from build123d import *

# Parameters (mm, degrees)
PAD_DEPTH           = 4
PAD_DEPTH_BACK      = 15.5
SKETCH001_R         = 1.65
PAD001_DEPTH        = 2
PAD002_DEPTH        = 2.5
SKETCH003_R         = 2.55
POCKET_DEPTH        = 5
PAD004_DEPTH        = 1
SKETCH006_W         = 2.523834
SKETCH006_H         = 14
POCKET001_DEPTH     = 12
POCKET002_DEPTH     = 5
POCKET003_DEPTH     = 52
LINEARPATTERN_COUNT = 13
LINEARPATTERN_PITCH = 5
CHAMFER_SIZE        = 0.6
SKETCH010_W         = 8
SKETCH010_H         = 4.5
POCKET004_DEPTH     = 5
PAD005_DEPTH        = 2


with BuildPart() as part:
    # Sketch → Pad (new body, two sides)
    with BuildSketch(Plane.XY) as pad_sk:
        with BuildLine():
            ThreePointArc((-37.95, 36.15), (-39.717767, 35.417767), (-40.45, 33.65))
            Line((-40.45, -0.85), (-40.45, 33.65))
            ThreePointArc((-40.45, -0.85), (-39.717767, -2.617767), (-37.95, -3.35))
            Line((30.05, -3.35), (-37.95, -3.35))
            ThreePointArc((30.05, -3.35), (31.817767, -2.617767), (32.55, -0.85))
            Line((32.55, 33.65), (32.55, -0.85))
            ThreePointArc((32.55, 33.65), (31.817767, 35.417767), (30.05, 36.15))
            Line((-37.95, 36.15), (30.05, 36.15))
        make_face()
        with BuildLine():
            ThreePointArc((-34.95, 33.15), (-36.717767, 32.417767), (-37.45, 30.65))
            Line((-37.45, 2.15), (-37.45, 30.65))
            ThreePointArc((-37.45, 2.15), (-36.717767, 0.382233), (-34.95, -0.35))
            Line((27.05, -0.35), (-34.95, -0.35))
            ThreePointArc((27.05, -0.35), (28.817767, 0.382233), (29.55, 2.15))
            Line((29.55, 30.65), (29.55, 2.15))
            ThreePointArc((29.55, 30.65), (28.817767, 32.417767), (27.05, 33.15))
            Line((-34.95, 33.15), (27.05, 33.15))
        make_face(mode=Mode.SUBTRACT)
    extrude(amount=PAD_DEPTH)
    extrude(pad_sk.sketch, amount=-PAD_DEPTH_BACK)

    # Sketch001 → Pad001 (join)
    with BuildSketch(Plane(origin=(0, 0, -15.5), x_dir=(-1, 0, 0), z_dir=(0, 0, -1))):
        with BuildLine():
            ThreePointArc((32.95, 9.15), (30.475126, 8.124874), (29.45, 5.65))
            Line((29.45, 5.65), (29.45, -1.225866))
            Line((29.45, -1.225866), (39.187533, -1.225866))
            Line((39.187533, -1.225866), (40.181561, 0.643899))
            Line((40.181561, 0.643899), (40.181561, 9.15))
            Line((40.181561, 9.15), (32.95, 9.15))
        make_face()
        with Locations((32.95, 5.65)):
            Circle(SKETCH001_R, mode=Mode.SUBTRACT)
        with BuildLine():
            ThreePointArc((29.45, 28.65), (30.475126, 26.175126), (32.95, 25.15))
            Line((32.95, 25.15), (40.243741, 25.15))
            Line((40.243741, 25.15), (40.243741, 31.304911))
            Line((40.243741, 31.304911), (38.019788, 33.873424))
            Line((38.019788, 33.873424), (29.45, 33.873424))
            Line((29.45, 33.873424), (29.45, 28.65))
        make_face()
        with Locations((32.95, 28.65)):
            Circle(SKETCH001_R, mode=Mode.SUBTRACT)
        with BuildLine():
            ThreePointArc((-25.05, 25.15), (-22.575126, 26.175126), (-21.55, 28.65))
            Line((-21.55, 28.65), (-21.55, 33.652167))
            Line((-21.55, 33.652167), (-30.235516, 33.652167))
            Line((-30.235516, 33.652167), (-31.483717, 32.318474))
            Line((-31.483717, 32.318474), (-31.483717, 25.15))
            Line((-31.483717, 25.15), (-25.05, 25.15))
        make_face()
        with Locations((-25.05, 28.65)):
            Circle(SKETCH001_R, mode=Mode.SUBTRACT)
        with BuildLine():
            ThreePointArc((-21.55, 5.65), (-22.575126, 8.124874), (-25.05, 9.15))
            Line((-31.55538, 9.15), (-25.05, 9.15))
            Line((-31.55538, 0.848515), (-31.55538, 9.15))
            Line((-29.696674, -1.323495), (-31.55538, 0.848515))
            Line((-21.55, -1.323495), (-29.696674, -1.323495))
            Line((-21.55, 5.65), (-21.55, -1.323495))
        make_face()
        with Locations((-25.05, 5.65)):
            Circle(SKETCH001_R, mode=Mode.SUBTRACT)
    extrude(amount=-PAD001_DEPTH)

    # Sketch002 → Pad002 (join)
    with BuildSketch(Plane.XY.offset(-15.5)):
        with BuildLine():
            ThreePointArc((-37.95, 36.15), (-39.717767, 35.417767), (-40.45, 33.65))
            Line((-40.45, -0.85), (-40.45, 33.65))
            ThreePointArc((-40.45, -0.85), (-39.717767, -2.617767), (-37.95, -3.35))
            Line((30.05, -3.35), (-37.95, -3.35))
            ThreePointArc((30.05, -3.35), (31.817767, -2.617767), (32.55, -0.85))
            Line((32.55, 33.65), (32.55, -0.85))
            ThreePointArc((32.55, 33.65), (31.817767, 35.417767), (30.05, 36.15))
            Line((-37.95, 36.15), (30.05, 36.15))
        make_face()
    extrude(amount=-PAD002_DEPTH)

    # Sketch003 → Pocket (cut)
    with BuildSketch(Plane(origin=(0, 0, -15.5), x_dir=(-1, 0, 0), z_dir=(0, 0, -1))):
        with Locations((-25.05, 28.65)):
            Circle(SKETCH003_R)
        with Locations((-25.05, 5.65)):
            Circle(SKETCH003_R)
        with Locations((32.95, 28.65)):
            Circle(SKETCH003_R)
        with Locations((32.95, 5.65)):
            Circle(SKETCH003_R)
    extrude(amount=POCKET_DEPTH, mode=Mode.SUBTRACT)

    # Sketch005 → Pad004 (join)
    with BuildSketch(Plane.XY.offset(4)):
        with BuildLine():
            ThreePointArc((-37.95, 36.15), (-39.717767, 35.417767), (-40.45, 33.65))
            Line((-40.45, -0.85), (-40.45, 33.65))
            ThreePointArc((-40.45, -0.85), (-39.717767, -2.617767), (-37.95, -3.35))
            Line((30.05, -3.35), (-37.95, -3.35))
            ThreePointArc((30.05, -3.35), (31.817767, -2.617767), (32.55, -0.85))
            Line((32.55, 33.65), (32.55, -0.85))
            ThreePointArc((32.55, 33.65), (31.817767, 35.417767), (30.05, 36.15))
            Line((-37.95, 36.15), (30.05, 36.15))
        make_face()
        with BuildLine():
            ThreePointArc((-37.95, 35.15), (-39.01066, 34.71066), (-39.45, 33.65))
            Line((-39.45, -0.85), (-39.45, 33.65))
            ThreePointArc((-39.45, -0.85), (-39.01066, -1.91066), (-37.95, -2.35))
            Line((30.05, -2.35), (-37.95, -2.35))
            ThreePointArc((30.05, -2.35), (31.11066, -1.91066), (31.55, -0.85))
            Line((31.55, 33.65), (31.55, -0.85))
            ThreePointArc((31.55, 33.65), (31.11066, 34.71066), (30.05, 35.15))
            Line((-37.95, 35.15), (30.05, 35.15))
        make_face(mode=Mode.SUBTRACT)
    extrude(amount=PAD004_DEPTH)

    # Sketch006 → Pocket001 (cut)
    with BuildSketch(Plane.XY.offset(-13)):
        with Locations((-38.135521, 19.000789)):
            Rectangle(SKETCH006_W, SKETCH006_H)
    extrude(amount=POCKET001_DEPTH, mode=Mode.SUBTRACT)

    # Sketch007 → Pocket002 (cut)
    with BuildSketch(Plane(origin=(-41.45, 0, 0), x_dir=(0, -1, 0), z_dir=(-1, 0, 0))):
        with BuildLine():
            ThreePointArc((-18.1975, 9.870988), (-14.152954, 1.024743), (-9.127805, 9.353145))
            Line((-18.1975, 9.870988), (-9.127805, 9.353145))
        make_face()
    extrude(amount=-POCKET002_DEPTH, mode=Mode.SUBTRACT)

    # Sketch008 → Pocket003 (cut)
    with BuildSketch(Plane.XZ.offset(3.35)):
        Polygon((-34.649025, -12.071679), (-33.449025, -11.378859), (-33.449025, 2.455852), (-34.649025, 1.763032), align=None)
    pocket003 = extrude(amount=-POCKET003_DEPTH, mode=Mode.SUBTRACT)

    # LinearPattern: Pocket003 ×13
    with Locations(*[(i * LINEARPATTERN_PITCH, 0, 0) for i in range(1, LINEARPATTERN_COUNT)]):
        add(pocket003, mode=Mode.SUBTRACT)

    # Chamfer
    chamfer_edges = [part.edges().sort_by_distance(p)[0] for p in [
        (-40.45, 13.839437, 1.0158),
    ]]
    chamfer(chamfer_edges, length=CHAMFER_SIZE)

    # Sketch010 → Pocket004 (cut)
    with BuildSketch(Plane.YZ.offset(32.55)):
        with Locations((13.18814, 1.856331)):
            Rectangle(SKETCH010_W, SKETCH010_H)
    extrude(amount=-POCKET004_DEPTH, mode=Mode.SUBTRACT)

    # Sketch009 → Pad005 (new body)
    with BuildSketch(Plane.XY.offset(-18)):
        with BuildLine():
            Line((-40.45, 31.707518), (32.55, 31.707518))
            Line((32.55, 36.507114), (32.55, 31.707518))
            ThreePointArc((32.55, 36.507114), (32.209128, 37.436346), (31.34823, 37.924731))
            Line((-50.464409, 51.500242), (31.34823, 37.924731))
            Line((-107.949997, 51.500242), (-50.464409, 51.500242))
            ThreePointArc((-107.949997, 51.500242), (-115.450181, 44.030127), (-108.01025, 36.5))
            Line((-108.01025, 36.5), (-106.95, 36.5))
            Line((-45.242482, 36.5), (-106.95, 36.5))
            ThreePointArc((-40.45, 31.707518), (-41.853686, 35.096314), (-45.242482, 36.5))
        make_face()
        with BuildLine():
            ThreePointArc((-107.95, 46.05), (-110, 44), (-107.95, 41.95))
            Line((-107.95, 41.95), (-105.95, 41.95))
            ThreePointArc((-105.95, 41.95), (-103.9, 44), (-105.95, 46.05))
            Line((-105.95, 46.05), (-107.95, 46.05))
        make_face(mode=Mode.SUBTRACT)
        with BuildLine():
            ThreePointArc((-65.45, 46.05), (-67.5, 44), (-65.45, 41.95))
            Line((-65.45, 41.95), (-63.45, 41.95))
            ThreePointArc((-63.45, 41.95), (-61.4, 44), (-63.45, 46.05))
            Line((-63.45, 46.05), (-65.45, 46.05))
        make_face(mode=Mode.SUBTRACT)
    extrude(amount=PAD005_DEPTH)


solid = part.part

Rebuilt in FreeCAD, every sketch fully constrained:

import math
import FreeCAD as App
import Part
import Sketcher
Q = App.Units.Quantity


def edges_at(feature, points):
    """Names of the edges that pass closest to the given points."""
    edges = feature.Shape.Edges
    near = lambda p: min(range(len(edges)), key=lambda i: edges[i].distToShape(Part.Vertex(*p))[0])
    return sorted({f"Edge{near(p) + 1}" for p in points})

doc = App.newDocument("Part")
params = doc.addObject("Spreadsheet::Sheet", "Params")
for row, (alias, value) in enumerate([
    ("sketch1_radius", "2.5 mm"),
    ("sketch1_width", "68 mm"),
    ("sketch1_width2", "62 mm"),
    ("sketch1_height", "34.5 mm"),
    ("sketch1_height2", "28.5 mm"),
    ("pad1_length", "4 mm"),
    ("pad1_length2", "15.5 mm"),
    ("sketch2_diameter", "3.3 mm"),
    ("sketch2_radius", "3.499999 mm"),
    ("pad2_length", "2 mm"),
    ("sketch3_radius", "2.5 mm"),
    ("sketch3_width", "68 mm"),
    ("sketch3_height", "34.5 mm"),
    ("pad3_length", "2.5 mm"),
    ("sketch4_diameter", "5.1 mm"),
    ("pocket1_length", "5 mm"),
    ("sketch5_radius", "2.5 mm"),
    ("sketch5_radius2", "1.500001 mm"),
    ("sketch5_width", "68 mm"),
    ("sketch5_height", "34.5 mm"),
    ("pad4_length", "1 mm"),
    ("sketch6_height", "14 mm"),
    ("pocket2_length", "12 mm"),
    ("sketch7_radius", "5.5 mm"),
    ("pocket3_length", "5 mm"),
    ("pocket4_length", "52 mm"),
    ("linearpattern_pitch", "5 mm"),
    ("chamfer_size", "0.6 mm"),
    ("sketch9_width", "8 mm"),
    ("sketch9_height", "4.5 mm"),
    ("pocket5_length", "5 mm"),
    ("sketch10_width", "73 mm"),
    ("sketch10_width2", "2 mm"),
    ("sketch10_radius", "2.05 mm"),
    ("pad5_length", "2 mm"),
], start=1):
    params.set(f"A{row}", alias)
    params.set(f"B{row}", "=" + value)
    params.setAlias(f"B{row}", alias)

body = doc.addObject("PartDesign::Body", "Body")

# Sketch on XY plane
sketch1 = body.newObject("Sketcher::SketchObject", "Sketch")
sketch1.AttachmentSupport = (doc.getObject("XY_Plane"), [""])
sketch1.MapMode = "FlatFace"
sketch1.addGeometry([
    Part.ArcOfCircle(Part.Circle(App.Vector(-38, 33.7, 0), App.Vector(0, 0, 1), 2.5), math.radians(90), math.radians(180)),  # 0
    Part.LineSegment(App.Vector(-40.5, 33.6, 0), App.Vector(-40.5, -0.8, 0)),  # 1
    Part.ArcOfCircle(Part.Circle(App.Vector(-38, -0.9, 0), App.Vector(0, 0, 1), 2.5), math.radians(180), math.radians(270)),  # 2
    Part.LineSegment(App.Vector(-38, -3.4, 0), App.Vector(30.1, -3.4, 0)),  # 3
    Part.ArcOfCircle(Part.Circle(App.Vector(30.1, -0.9, 0), App.Vector(0, 0, 1), 2.5), math.radians(-90), math.radians(0)),  # 4
    Part.LineSegment(App.Vector(32.5, -0.8, 0), App.Vector(32.5, 33.6, 0)),  # 5
    Part.ArcOfCircle(Part.Circle(App.Vector(30.1, 33.7, 0), App.Vector(0, 0, 1), 2.5), math.radians(0), math.radians(90)),  # 6
    Part.LineSegment(App.Vector(30.1, 36.1, 0), App.Vector(-38, 36.1, 0)),  # 7
    Part.ArcOfCircle(Part.Circle(App.Vector(-35, 30.7, 0), App.Vector(0, 0, 1), 2.5), math.radians(90), math.radians(180)),  # 8
    Part.LineSegment(App.Vector(-35, 33.1, 0), App.Vector(27.1, 33.1, 0)),  # 9
    Part.ArcOfCircle(Part.Circle(App.Vector(27.1, 30.7, 0), App.Vector(0, 0, 1), 2.5), math.radians(0), math.radians(90)),  # 10
    Part.LineSegment(App.Vector(29.6, 30.6, 0), App.Vector(29.6, 2.1, 0)),  # 11
    Part.ArcOfCircle(Part.Circle(App.Vector(27.1, 2.1, 0), App.Vector(0, 0, 1), 2.5), math.radians(-90), math.radians(0)),  # 12
    Part.LineSegment(App.Vector(27.1, -0.3, 0), App.Vector(-35, -0.3, 0)),  # 13
    Part.ArcOfCircle(Part.Circle(App.Vector(-35, 2.1, 0), App.Vector(0, 0, 1), 2.5), math.radians(180), math.radians(270)),  # 14
    Part.LineSegment(App.Vector(-37.5, 2.1, 0), App.Vector(-37.5, 30.6, 0)),  # 15
], False)
sketch1.addConstraint([
    Sketcher.Constraint("Tangent", 0, 2, 1, 1),
    Sketcher.Constraint("Tangent", 1, 2, 2, 1),
    Sketcher.Constraint("Tangent", 2, 2, 3, 1),
    Sketcher.Constraint("Tangent", 3, 2, 4, 1),
    Sketcher.Constraint("Tangent", 4, 2, 5, 1),
    Sketcher.Constraint("Tangent", 5, 2, 6, 1),
    Sketcher.Constraint("Tangent", 6, 2, 7, 1),
    Sketcher.Constraint("Tangent", 7, 2, 0, 1),
    Sketcher.Constraint("Tangent", 8, 1, 9, 1),
    Sketcher.Constraint("Tangent", 9, 2, 10, 2),
    Sketcher.Constraint("Tangent", 10, 1, 11, 1),
    Sketcher.Constraint("Tangent", 11, 2, 12, 2),
    Sketcher.Constraint("Tangent", 12, 1, 13, 1),
    Sketcher.Constraint("Tangent", 13, 2, 14, 2),
    Sketcher.Constraint("Tangent", 14, 1, 15, 1),
    Sketcher.Constraint("Tangent", 15, 2, 8, 2),
    Sketcher.Constraint("Vertical", 1),
    Sketcher.Constraint("Horizontal", 3),
    Sketcher.Constraint("Vertical", 5),
    Sketcher.Constraint("Horizontal", 7),
    Sketcher.Constraint("Horizontal", 9),
    Sketcher.Constraint("Vertical", 11),
    Sketcher.Constraint("Horizontal", 13),
    Sketcher.Constraint("Vertical", 15),
    Sketcher.Constraint("Equal", 0, 2),
    Sketcher.Constraint("Equal", 2, 4),
    Sketcher.Constraint("Equal", 4, 6),
    Sketcher.Constraint("Equal", 6, 8),
    Sketcher.Constraint("Equal", 8, 10),
    Sketcher.Constraint("Equal", 10, 12),
    Sketcher.Constraint("Equal", 12, 14),
    Sketcher.Constraint("Radius", 0, 2.5),
    Sketcher.Constraint("DistanceX", 3, 1, 3, 2, 68.0),
    Sketcher.Constraint("DistanceX", 9, 1, 9, 2, 62.0),
    Sketcher.Constraint("DistanceY", 1, 2, 1, 1, 34.5),
    Sketcher.Constraint("DistanceY", 11, 2, 11, 1, 28.5),
    Sketcher.Constraint("DistanceX", 0, 3, 8, 3, 3.0),
    Sketcher.Constraint("DistanceY", 8, 3, 0, 3, 3.0),
    Sketcher.Constraint("DistanceX", 0, 3, -1, 1, 37.95),
    Sketcher.Constraint("DistanceY", -1, 1, 0, 3, 33.65),
])
sketch1.setExpression("Constraints[31]", "Params.sketch1_radius")
sketch1.setExpression("Constraints[32]", "Params.sketch1_width")
sketch1.setExpression("Constraints[33]", "Params.sketch1_width2")
sketch1.setExpression("Constraints[34]", "Params.sketch1_height")
sketch1.setExpression("Constraints[35]", "Params.sketch1_height2")
pad1 = body.newObject("PartDesign::Pad", "Pad")
pad1.Profile = sketch1
pad1.Type = "TwoLengths"
pad1.setExpression("Length", "Params.pad1_length")
pad1.setExpression("Length2", "Params.pad1_length2")

# Sketch on XY plane
sketch2 = body.newObject("Sketcher::SketchObject", "Sketch001")
sketch2.AttachmentSupport = (doc.getObject("XY_Plane"), [""])
sketch2.MapMode = "FlatFace"
sketch2.AttachmentOffset = App.Placement(App.Vector(0, 0, -15.5), App.Rotation())
sketch2.addGeometry([
    Part.ArcOfCircle(Part.Circle(App.Vector(-32.9, 5.7, 0), App.Vector(0, 0, 1), 3.5), math.radians(0), math.radians(90)),  # 0
    Part.LineSegment(App.Vector(-29.4, 5.7, 0), App.Vector(-29.4, -1.2, 0)),  # 1
    Part.LineSegment(App.Vector(-29.4, -1.2, 0), App.Vector(-39.2, -1.2, 0)),  # 2
    Part.LineSegment(App.Vector(-39.2, -1.2, 0), App.Vector(-40.2, 0.6, 0)),  # 3
    Part.LineSegment(App.Vector(-40.2, 0.6, 0), App.Vector(-40.2, 9.2, 0)),  # 4
    Part.LineSegment(App.Vector(-40.2, 9.2, 0), App.Vector(-33, 9.2, 0)),  # 5
    Part.Circle(App.Vector(-33, 5.7, 0), App.Vector(0, 0, 1), 1.6),  # 6
    Part.ArcOfCircle(Part.Circle(App.Vector(-32.9, 28.6, 0), App.Vector(0, 0, 1), 3.5), math.radians(-90), math.radians(0)),  # 7
    Part.LineSegment(App.Vector(-33, 25.1, 0), App.Vector(-40.2, 25.1, 0)),  # 8
    Part.LineSegment(App.Vector(-40.2, 25.1, 0), App.Vector(-40.2, 31.3, 0)),  # 9
    Part.LineSegment(App.Vector(-40.2, 31.3, 0), App.Vector(-38, 33.9, 0)),  # 10
    Part.LineSegment(App.Vector(-38, 33.9, 0), App.Vector(-29.4, 33.9, 0)),  # 11
    Part.LineSegment(App.Vector(-29.4, 33.9, 0), App.Vector(-29.4, 28.6, 0)),  # 12
    Part.Circle(App.Vector(-33, 28.6, 0), App.Vector(0, 0, 1), 1.6),  # 13
    Part.ArcOfCircle(Part.Circle(App.Vector(25, 28.6, 0), App.Vector(0, 0, 1), 3.5), math.radians(180), math.radians(270)),  # 14
    Part.LineSegment(App.Vector(21.6, 28.6, 0), App.Vector(21.6, 33.7, 0)),  # 15
    Part.LineSegment(App.Vector(21.6, 33.7, 0), App.Vector(30.2, 33.7, 0)),  # 16
    Part.LineSegment(App.Vector(30.2, 33.7, 0), App.Vector(31.5, 32.3, 0)),  # 17
    Part.LineSegment(App.Vector(31.5, 32.3, 0), App.Vector(31.5, 25.1, 0)),  # 18
    Part.LineSegment(App.Vector(31.5, 25.1, 0), App.Vector(25.1, 25.1, 0)),  # 19
    Part.Circle(App.Vector(25.1, 28.6, 0), App.Vector(0, 0, 1), 1.6),  # 20
    Part.ArcOfCircle(Part.Circle(App.Vector(25, 5.7, 0), App.Vector(0, 0, 1), 3.5), math.radians(90), math.radians(180)),  # 21
    Part.LineSegment(App.Vector(25.1, 9.2, 0), App.Vector(31.6, 9.2, 0)),  # 22
    Part.LineSegment(App.Vector(31.6, 9.2, 0), App.Vector(31.6, 0.8, 0)),  # 23
    Part.LineSegment(App.Vector(31.6, 0.8, 0), App.Vector(29.7, -1.3, 0)),  # 24
    Part.LineSegment(App.Vector(29.7, -1.3, 0), App.Vector(21.6, -1.3, 0)),  # 25
    Part.LineSegment(App.Vector(21.6, -1.3, 0), App.Vector(21.6, 5.7, 0)),  # 26
    Part.Circle(App.Vector(25.1, 5.7, 0), App.Vector(0, 0, 1), 1.6),  # 27
], False)
sketch2.addConstraint([
    Sketcher.Constraint("Tangent", 0, 1, 1, 1),
    Sketcher.Constraint("Coincident", 1, 2, 2, 1),
    Sketcher.Constraint("Coincident", 2, 2, 3, 1),
    Sketcher.Constraint("Coincident", 3, 2, 4, 1),
    Sketcher.Constraint("Coincident", 4, 2, 5, 1),
    Sketcher.Constraint("Tangent", 5, 2, 0, 2),
    Sketcher.Constraint("Tangent", 7, 1, 8, 1),
    Sketcher.Constraint("Coincident", 8, 2, 9, 1),
    Sketcher.Constraint("Coincident", 9, 2, 10, 1),
    Sketcher.Constraint("Coincident", 10, 2, 11, 1),
    Sketcher.Constraint("Coincident", 11, 2, 12, 1),
    Sketcher.Constraint("Tangent", 12, 2, 7, 2),
    Sketcher.Constraint("Tangent", 14, 1, 15, 1),
    Sketcher.Constraint("Coincident", 15, 2, 16, 1),
    Sketcher.Constraint("Coincident", 16, 2, 17, 1),
    Sketcher.Constraint("Coincident", 17, 2, 18, 1),
    Sketcher.Constraint("Coincident", 18, 2, 19, 1),
    Sketcher.Constraint("Tangent", 19, 2, 14, 2),
    Sketcher.Constraint("Tangent", 21, 1, 22, 1),
    Sketcher.Constraint("Coincident", 22, 2, 23, 1),
    Sketcher.Constraint("Coincident", 23, 2, 24, 1),
    Sketcher.Constraint("Coincident", 24, 2, 25, 1),
    Sketcher.Constraint("Coincident", 25, 2, 26, 1),
    Sketcher.Constraint("Tangent", 26, 2, 21, 2),
    Sketcher.Constraint("Vertical", 1),
    Sketcher.Constraint("Horizontal", 2),
    Sketcher.Constraint("Vertical", 4),
    Sketcher.Constraint("Horizontal", 5),
    Sketcher.Constraint("Horizontal", 8),
    Sketcher.Constraint("Vertical", 9),
    Sketcher.Constraint("Horizontal", 11),
    Sketcher.Constraint("Vertical", 12),
    Sketcher.Constraint("Vertical", 15),
    Sketcher.Constraint("Horizontal", 16),
    Sketcher.Constraint("Vertical", 18),
    Sketcher.Constraint("Horizontal", 19),
    Sketcher.Constraint("Horizontal", 22),
    Sketcher.Constraint("Vertical", 23),
    Sketcher.Constraint("Horizontal", 25),
    Sketcher.Constraint("Vertical", 26),
    Sketcher.Constraint("Coincident", 6, 3, 0, 3),
    Sketcher.Constraint("Coincident", 13, 3, 7, 3),
    Sketcher.Constraint("Coincident", 20, 3, 14, 3),
    Sketcher.Constraint("Coincident", 27, 3, 21, 3),
    Sketcher.Constraint("Equal", 0, 7),
    Sketcher.Constraint("Equal", 6, 13),
    Sketcher.Constraint("Equal", 7, 14),
    Sketcher.Constraint("Equal", 13, 20),
    Sketcher.Constraint("Equal", 14, 21),
    Sketcher.Constraint("Equal", 20, 27),
    Sketcher.Constraint("Horizontal", 13, 3, 14, 3),
    Sketcher.Constraint("Horizontal", 6, 3, 21, 3),
    Sketcher.Constraint("Vertical", 6, 3, 7, 3),
    Sketcher.Constraint("Vertical", 20, 3, 21, 3),
    Sketcher.Constraint("Diameter", 6, 3.3),
    Sketcher.Constraint("Radius", 0, 3.499999),
    Sketcher.Constraint("DistanceY", 0, 3, 7, 3, 22.999998),
    Sketcher.Constraint("DistanceX", 7, 3, 14, 3, 57.999998),
    Sketcher.Constraint("DistanceX", 0, 3, -1, 1, 32.949999),
    Sketcher.Constraint("DistanceY", -1, 1, 0, 3, 5.650001),
    Sketcher.Constraint("DistanceY", 4, 1, 4, 2, 8.506101),
    Sketcher.Constraint("DistanceX", 5, 1, 5, 2, 7.231561),
    Sketcher.Constraint("DistanceX", 8, 2, 8, 1, 7.293741),
    Sketcher.Constraint("DistanceX", 22, 1, 22, 2, 6.50538),
    Sketcher.Constraint("DistanceY", 9, 1, 9, 2, 6.154911),
    Sketcher.Constraint("DistanceX", 16, 2, 17, 2, 1.248201),
    Sketcher.Constraint("DistanceX", 2, 2, 2, 1, 9.737533),
    Sketcher.Constraint("DistanceX", 11, 1, 11, 2, 8.569788),
    Sketcher.Constraint("DistanceX", 16, 1, 16, 2, 8.685516),
    Sketcher.Constraint("DistanceX", 25, 2, 25, 1, 8.146674),
    Sketcher.Constraint("DistanceY", 1, 2, 1, 1, 6.875866),
    Sketcher.Constraint("DistanceY", 12, 2, 12, 1, 5.223424),
    Sketcher.Constraint("DistanceY", 15, 1, 15, 2, 5.002167),
    Sketcher.Constraint("DistanceY", 18, 2, 18, 1, 7.168474),
    Sketcher.Constraint("DistanceY", 23, 2, 23, 1, 8.301485),
    Sketcher.Constraint("DistanceY", 26, 1, 26, 2, 6.973495),
])
sketch2.setExpression("Constraints[54]", "Params.sketch2_diameter")
sketch2.setExpression("Constraints[55]", "Params.sketch2_radius")
pad2 = body.newObject("PartDesign::Pad", "Pad001")
pad2.Profile = sketch2
pad2.setExpression("Length", "Params.pad2_length")

# Sketch on XY plane
sketch3 = body.newObject("Sketcher::SketchObject", "Sketch002")
sketch3.AttachmentSupport = (doc.getObject("XY_Plane"), [""])
sketch3.MapMode = "FlatFace"
sketch3.AttachmentOffset = App.Placement(App.Vector(0, 0, -15.5), App.Rotation())
sketch3.addGeometry([
    Part.ArcOfCircle(Part.Circle(App.Vector(-38, 33.7, 0), App.Vector(0, 0, 1), 2.5), math.radians(90), math.radians(180)),  # 0
    Part.LineSegment(App.Vector(-40.5, 33.6, 0), App.Vector(-40.5, -0.8, 0)),  # 1
    Part.ArcOfCircle(Part.Circle(App.Vector(-38, -0.9, 0), App.Vector(0, 0, 1), 2.5), math.radians(180), math.radians(270)),  # 2
    Part.LineSegment(App.Vector(-38, -3.4, 0), App.Vector(30.1, -3.4, 0)),  # 3
    Part.ArcOfCircle(Part.Circle(App.Vector(30.1, -0.9, 0), App.Vector(0, 0, 1), 2.5), math.radians(-90), math.radians(0)),  # 4
    Part.LineSegment(App.Vector(32.5, -0.8, 0), App.Vector(32.5, 33.6, 0)),  # 5
    Part.ArcOfCircle(Part.Circle(App.Vector(30.1, 33.7, 0), App.Vector(0, 0, 1), 2.5), math.radians(0), math.radians(90)),  # 6
    Part.LineSegment(App.Vector(30.1, 36.1, 0), App.Vector(-38, 36.1, 0)),  # 7
], False)
sketch3.addConstraint([
    Sketcher.Constraint("Tangent", 0, 2, 1, 1),
    Sketcher.Constraint("Tangent", 1, 2, 2, 1),
    Sketcher.Constraint("Tangent", 2, 2, 3, 1),
    Sketcher.Constraint("Tangent", 3, 2, 4, 1),
    Sketcher.Constraint("Tangent", 4, 2, 5, 1),
    Sketcher.Constraint("Tangent", 5, 2, 6, 1),
    Sketcher.Constraint("Tangent", 6, 2, 7, 1),
    Sketcher.Constraint("Tangent", 7, 2, 0, 1),
    Sketcher.Constraint("Vertical", 1),
    Sketcher.Constraint("Horizontal", 3),
    Sketcher.Constraint("Vertical", 5),
    Sketcher.Constraint("Horizontal", 7),
    Sketcher.Constraint("Equal", 0, 2),
    Sketcher.Constraint("Equal", 2, 4),
    Sketcher.Constraint("Equal", 4, 6),
    Sketcher.Constraint("Radius", 0, 2.5),
    Sketcher.Constraint("DistanceX", 3, 1, 3, 2, 68.0),
    Sketcher.Constraint("DistanceY", 1, 2, 1, 1, 34.5),
    Sketcher.Constraint("DistanceX", 0, 3, -1, 1, 37.95),
    Sketcher.Constraint("DistanceY", -1, 1, 0, 3, 33.65),
])
sketch3.setExpression("Constraints[15]", "Params.sketch3_radius")
sketch3.setExpression("Constraints[16]", "Params.sketch3_width")
sketch3.setExpression("Constraints[17]", "Params.sketch3_height")
pad3 = body.newObject("PartDesign::Pad", "Pad002")
pad3.Profile = sketch3
pad3.setExpression("Length", "Params.pad3_length")
pad3.Reversed = True

# Sketch on XY plane
sketch4 = body.newObject("Sketcher::SketchObject", "Sketch003")
sketch4.AttachmentSupport = (doc.getObject("XY_Plane"), [""])
sketch4.MapMode = "FlatFace"
sketch4.AttachmentOffset = App.Placement(App.Vector(0, 0, -15.5), App.Rotation())
sketch4.addGeometry([
    Part.Circle(App.Vector(25.1, 28.6, 0), App.Vector(0, 0, 1), 2.5),
    Part.Circle(App.Vector(25.1, 5.7, 0), App.Vector(0, 0, 1), 2.5),
    Part.Circle(App.Vector(-33, 28.6, 0), App.Vector(0, 0, 1), 2.5),
    Part.Circle(App.Vector(-33, 5.7, 0), App.Vector(0, 0, 1), 2.5),
], False)
sketch4.addConstraint([
    Sketcher.Constraint("Equal", 0, 1),
    Sketcher.Constraint("Equal", 1, 2),
    Sketcher.Constraint("Equal", 2, 3),
    Sketcher.Constraint("Horizontal", 0, 3, 2, 3),
    Sketcher.Constraint("Horizontal", 1, 3, 3, 3),
    Sketcher.Constraint("Vertical", 0, 3, 1, 3),
    Sketcher.Constraint("Vertical", 2, 3, 3, 3),
    Sketcher.Constraint("Diameter", 0, 5.1),
    Sketcher.Constraint("DistanceY", 1, 3, 0, 3, 23.0),
    Sketcher.Constraint("DistanceX", 2, 3, 0, 3, 58.0),
    Sketcher.Constraint("DistanceX", -1, 1, 0, 3, 25.05),
    Sketcher.Constraint("DistanceY", -1, 1, 0, 3, 28.65),
])
sketch4.setExpression("Constraints[7]", "Params.sketch4_diameter")
pocket1 = body.newObject("PartDesign::Pocket", "Pocket")
pocket1.Profile = sketch4
pocket1.setExpression("Length", "Params.pocket1_length")

# Sketch on XY plane
sketch5 = body.newObject("Sketcher::SketchObject", "Sketch004")
sketch5.AttachmentSupport = (doc.getObject("XY_Plane"), [""])
sketch5.MapMode = "FlatFace"
sketch5.AttachmentOffset = App.Placement(App.Vector(0, 0, 4), App.Rotation())
sketch5.addGeometry([
    Part.ArcOfCircle(Part.Circle(App.Vector(-38, 33.7, 0), App.Vector(0, 0, 1), 2.5), math.radians(90), math.radians(180)),  # 0
    Part.LineSegment(App.Vector(-40.5, 33.6, 0), App.Vector(-40.5, -0.8, 0)),  # 1
    Part.ArcOfCircle(Part.Circle(App.Vector(-38, -0.9, 0), App.Vector(0, 0, 1), 2.5), math.radians(180), math.radians(270)),  # 2
    Part.LineSegment(App.Vector(-38, -3.4, 0), App.Vector(30.1, -3.4, 0)),  # 3
    Part.ArcOfCircle(Part.Circle(App.Vector(30.1, -0.9, 0), App.Vector(0, 0, 1), 2.5), math.radians(-90), math.radians(0)),  # 4
    Part.LineSegment(App.Vector(32.5, -0.8, 0), App.Vector(32.5, 33.6, 0)),  # 5
    Part.ArcOfCircle(Part.Circle(App.Vector(30.1, 33.7, 0), App.Vector(0, 0, 1), 2.5), math.radians(0), math.radians(90)),  # 6
    Part.LineSegment(App.Vector(30.1, 36.1, 0), App.Vector(-38, 36.1, 0)),  # 7
    Part.ArcOfCircle(Part.Circle(App.Vector(-37.9, 33.6, 0), App.Vector(0, 0, 1), 1.5), math.radians(90), math.radians(180)),  # 8
    Part.LineSegment(App.Vector(-38, 35.1, 0), App.Vector(30.1, 35.1, 0)),  # 9
    Part.ArcOfCircle(Part.Circle(App.Vector(30, 33.6, 0), App.Vector(0, 0, 1), 1.5), math.radians(0), math.radians(90)),  # 10
    Part.LineSegment(App.Vector(31.6, 33.6, 0), App.Vector(31.6, -0.8, 0)),  # 11
    Part.ArcOfCircle(Part.Circle(App.Vector(30, -0.8, 0), App.Vector(0, 0, 1), 1.5), math.radians(-90), math.radians(0)),  # 12
    Part.LineSegment(App.Vector(30.1, -2.4, 0), App.Vector(-38, -2.4, 0)),  # 13
    Part.ArcOfCircle(Part.Circle(App.Vector(-37.9, -0.8, 0), App.Vector(0, 0, 1), 1.5), math.radians(-180), math.radians(-90)),  # 14
    Part.LineSegment(App.Vector(-39.5, -0.8, 0), App.Vector(-39.5, 33.6, 0)),  # 15
], False)
sketch5.addConstraint([
    Sketcher.Constraint("Tangent", 0, 2, 1, 1),
    Sketcher.Constraint("Tangent", 1, 2, 2, 1),
    Sketcher.Constraint("Tangent", 2, 2, 3, 1),
    Sketcher.Constraint("Tangent", 3, 2, 4, 1),
    Sketcher.Constraint("Tangent", 4, 2, 5, 1),
    Sketcher.Constraint("Tangent", 5, 2, 6, 1),
    Sketcher.Constraint("Tangent", 6, 2, 7, 1),
    Sketcher.Constraint("Tangent", 7, 2, 0, 1),
    Sketcher.Constraint("Tangent", 8, 1, 9, 1),
    Sketcher.Constraint("Tangent", 9, 2, 10, 2),
    Sketcher.Constraint("Tangent", 10, 1, 11, 1),
    Sketcher.Constraint("Tangent", 11, 2, 12, 2),
    Sketcher.Constraint("Tangent", 12, 1, 13, 1),
    Sketcher.Constraint("Tangent", 13, 2, 14, 2),
    Sketcher.Constraint("Tangent", 14, 1, 15, 1),
    Sketcher.Constraint("Tangent", 15, 2, 8, 2),
    Sketcher.Constraint("Vertical", 1),
    Sketcher.Constraint("Horizontal", 3),
    Sketcher.Constraint("Vertical", 5),
    Sketcher.Constraint("Horizontal", 7),
    Sketcher.Constraint("Horizontal", 9),
    Sketcher.Constraint("Vertical", 11),
    Sketcher.Constraint("Horizontal", 13),
    Sketcher.Constraint("Vertical", 15),
    Sketcher.Constraint("Coincident", 8, 3, 0, 3),
    Sketcher.Constraint("Coincident", 10, 3, 6, 3),
    Sketcher.Constraint("Coincident", 12, 3, 4, 3),
    Sketcher.Constraint("Equal", 0, 2),
    Sketcher.Constraint("Equal", 2, 4),
    Sketcher.Constraint("Equal", 4, 6),
    Sketcher.Constraint("Equal", 12, 14),
    Sketcher.Constraint("Radius", 0, 2.5),
    Sketcher.Constraint("Radius", 8, 1.500001),
    Sketcher.Constraint("DistanceX", 3, 1, 3, 2, 68.0),
    Sketcher.Constraint("DistanceY", 1, 2, 1, 1, 34.5),
    Sketcher.Constraint("DistanceX", 0, 3, -1, 1, 37.95),
    Sketcher.Constraint("DistanceY", -1, 1, 0, 3, 33.65),
])
sketch5.setExpression("Constraints[31]", "Params.sketch5_radius")
sketch5.setExpression("Constraints[32]", "Params.sketch5_radius2")
sketch5.setExpression("Constraints[33]", "Params.sketch5_width")
sketch5.setExpression("Constraints[34]", "Params.sketch5_height")
pad4 = body.newObject("PartDesign::Pad", "Pad003")
pad4.Profile = sketch5
pad4.setExpression("Length", "Params.pad4_length")

# Sketch on XY plane
sketch6 = body.newObject("Sketcher::SketchObject", "Sketch005")
sketch6.AttachmentSupport = (doc.getObject("XY_Plane"), [""])
sketch6.MapMode = "FlatFace"
sketch6.AttachmentOffset = App.Placement(App.Vector(0, 0, -13), App.Rotation())
sketch6.addGeometry([
    Part.LineSegment(App.Vector(-39.4, 26, 0), App.Vector(-39.4, 12, 0)),
    Part.LineSegment(App.Vector(-39.4, 12, 0), App.Vector(-36.9, 12, 0)),
    Part.LineSegment(App.Vector(-36.9, 12, 0), App.Vector(-36.9, 26, 0)),
    Part.LineSegment(App.Vector(-36.9, 26, 0), App.Vector(-39.4, 26, 0)),
], False)
sketch6.addConstraint([
    Sketcher.Constraint("Coincident", 0, 2, 1, 1),
    Sketcher.Constraint("Coincident", 1, 2, 2, 1),
    Sketcher.Constraint("Coincident", 2, 2, 3, 1),
    Sketcher.Constraint("Coincident", 3, 2, 0, 1),
    Sketcher.Constraint("Vertical", 0),
    Sketcher.Constraint("Horizontal", 1),
    Sketcher.Constraint("Vertical", 2),
    Sketcher.Constraint("Horizontal", 3),
    Sketcher.Constraint("DistanceY", 0, 2, 0, 1, 14.0),
    Sketcher.Constraint("DistanceX", 1, 1, 1, 2, 2.523834),
    Sketcher.Constraint("DistanceY", -1, 1, 0, 2, 12.000789),
    Sketcher.Constraint("DistanceX", 0, 2, -1, 1, 39.397438),
])
sketch6.setExpression("Constraints[8]", "Params.sketch6_height")
pocket2 = body.newObject("PartDesign::Pocket", "Pocket001")
pocket2.Profile = sketch6
pocket2.setExpression("Length", "Params.pocket2_length")
pocket2.Reversed = True

# Sketch on YZ plane
sketch7 = body.newObject("Sketcher::SketchObject", "Sketch006")
sketch7.AttachmentSupport = (doc.getObject("YZ_Plane"), [""])
sketch7.MapMode = "FlatFace"
sketch7.AttachmentOffset = App.Placement(App.Vector(0, 0, -41.45), App.Rotation())
sketch7.addGeometry([
    Part.ArcOfCircle(Part.Circle(App.Vector(14, 7, 0), App.Vector(0, 0, 1), 6), math.radians(149), math.radians(398)),
    Part.LineSegment(App.Vector(9, 9, 0), App.Vector(18, 10, 0)),
], False)
sketch7.addConstraint([
    Sketcher.Constraint("Coincident", 0, 1, 1, 1),
    Sketcher.Constraint("Coincident", 1, 2, 0, 2),
    Sketcher.Constraint("Radius", 0, 5.5),
    Sketcher.Constraint("DistanceY", -1, 1, 0, 3, 6.5158),
    Sketcher.Constraint("DistanceX", -1, 1, 1, 2, 18.1975),
    Sketcher.Constraint("DistanceX", 0, 1, 0, 3, 4.711632),
    Sketcher.Constraint("Distance", 1, 9.084466),
])
sketch7.setExpression("Constraints[2]", "Params.sketch7_radius")
pocket3 = body.newObject("PartDesign::Pocket", "Pocket002")
pocket3.Profile = sketch7
pocket3.setExpression("Length", "Params.pocket3_length")
pocket3.Reversed = True

# Sketch on XZ plane
sketch8 = body.newObject("Sketcher::SketchObject", "Sketch007")
sketch8.AttachmentSupport = (doc.getObject("XZ_Plane"), [""])
sketch8.MapMode = "FlatFace"
sketch8.AttachmentOffset = App.Placement(App.Vector(0, 0, 3.35), App.Rotation())
sketch8.addGeometry([
    Part.LineSegment(App.Vector(-34.6, -12.1, 0), App.Vector(-33.4, -11.4, 0)),
    Part.LineSegment(App.Vector(-33.4, -11.4, 0), App.Vector(-33.4, 2.5, 0)),
    Part.LineSegment(App.Vector(-33.4, 2.5, 0), App.Vector(-34.6, 1.8, 0)),
    Part.LineSegment(App.Vector(-34.6, 1.8, 0), App.Vector(-34.6, -12.1, 0)),
], False)
sketch8.addConstraint([
    Sketcher.Constraint("Coincident", 0, 2, 1, 1),
    Sketcher.Constraint("Coincident", 1, 2, 2, 1),
    Sketcher.Constraint("Coincident", 2, 2, 3, 1),
    Sketcher.Constraint("Coincident", 3, 2, 0, 1),
    Sketcher.Constraint("Vertical", 1),
    Sketcher.Constraint("Vertical", 3),
    Sketcher.Constraint("Parallel", 0, 2),
    Sketcher.Constraint("Angle", 0, Q("29.999988 deg")),
    Sketcher.Constraint("DistanceX", 2, 2, 1, 2, 1.2),
    Sketcher.Constraint("DistanceY", 1, 1, 1, 2, 13.834711),
    Sketcher.Constraint("DistanceY", 0, 2, -1, 1, 11.378859),
    Sketcher.Constraint("DistanceX", 0, 2, -1, 1, 33.449025),
])
pocket4 = body.newObject("PartDesign::Pocket", "Pocket003")
pocket4.Profile = sketch8
pocket4.setExpression("Length", "Params.pocket4_length")
doc.recompute()

linearpattern = body.newObject("PartDesign::LinearPattern", "LinearPattern")
linearpattern.Originals = [pocket4]
linearpattern.Direction = (doc.getObject("X_Axis"), [""])
linearpattern.Mode = "offset"
linearpattern.setExpression("Offset", "Params.linearpattern_pitch")
linearpattern.Occurrences = 13
body.Tip = linearpattern
doc.recompute()

chamfer = body.newObject("PartDesign::Chamfer", "Chamfer")
chamfer.Base = (linearpattern, edges_at(linearpattern, [(-40.45, 13.839, 1.016)]))
chamfer.setExpression("Size", "Params.chamfer_size")

# Sketch on YZ plane
sketch9 = body.newObject("Sketcher::SketchObject", "Sketch008")
sketch9.AttachmentSupport = (doc.getObject("YZ_Plane"), [""])
sketch9.MapMode = "FlatFace"
sketch9.AttachmentOffset = App.Placement(App.Vector(0, 0, 32.55), App.Rotation())
sketch9.addGeometry([
    Part.LineSegment(App.Vector(9.2, 4.1, 0), App.Vector(9.2, -0.4, 0)),
    Part.LineSegment(App.Vector(9.2, -0.4, 0), App.Vector(17.2, -0.4, 0)),
    Part.LineSegment(App.Vector(17.2, -0.4, 0), App.Vector(17.2, 4.1, 0)),
    Part.LineSegment(App.Vector(17.2, 4.1, 0), App.Vector(9.2, 4.1, 0)),
], False)
sketch9.addConstraint([
    Sketcher.Constraint("Coincident", 0, 2, 1, 1),
    Sketcher.Constraint("Coincident", 1, 2, 2, 1),
    Sketcher.Constraint("Coincident", 2, 2, 3, 1),
    Sketcher.Constraint("Coincident", 3, 2, 0, 1),
    Sketcher.Constraint("Vertical", 0),
    Sketcher.Constraint("Horizontal", 1),
    Sketcher.Constraint("Vertical", 2),
    Sketcher.Constraint("Horizontal", 3),
    Sketcher.Constraint("DistanceX", 1, 1, 1, 2, 8.0),
    Sketcher.Constraint("DistanceY", 0, 2, 0, 1, 4.5),
    Sketcher.Constraint("DistanceX", -1, 1, 0, 2, 9.18814),
    Sketcher.Constraint("DistanceY", 0, 2, -1, 1, 0.393669),
])
sketch9.setExpression("Constraints[8]", "Params.sketch9_width")
sketch9.setExpression("Constraints[9]", "Params.sketch9_height")
pocket5 = body.newObject("PartDesign::Pocket", "Pocket004")
pocket5.Profile = sketch9
pocket5.setExpression("Length", "Params.pocket5_length")

# Sketch on XY plane
sketch10 = body.newObject("Sketcher::SketchObject", "Sketch009")
sketch10.AttachmentSupport = (doc.getObject("XY_Plane"), [""])
sketch10.MapMode = "FlatFace"
sketch10.AttachmentOffset = App.Placement(App.Vector(0, 0, -18), App.Rotation())
sketch10.addGeometry([
    Part.LineSegment(App.Vector(-40.45, 31.707518, 0), App.Vector(32.55, 31.707518, 0)),  # 0
    Part.LineSegment(App.Vector(32.55, 31.707518, 0), App.Vector(32.55, 36.507114, 0)),  # 1
    Part.ArcOfCircle(Part.Circle(App.Vector(31.112998, 36.507113, 0), App.Vector(0, 0, 1), 1.437002), math.radians(0.000034), math.radians(80.578492)),  # 2
    Part.LineSegment(App.Vector(31.34823, 37.924731, 0), App.Vector(-50.464409, 51.500242, 0)),  # 3
    Part.LineSegment(App.Vector(-50.464409, 51.500242, 0), App.Vector(-107.949997, 51.500242, 0)),  # 4
    Part.ArcOfCircle(Part.Circle(App.Vector(-107.95, 44, 0), App.Vector(0, 0, 1), 7.500242), math.radians(89.999981), math.radians(269.53973)),  # 5
    Part.LineSegment(App.Vector(-108.01025, 36.5, 0), App.Vector(-45.242482, 36.5, 0)),  # 6
    Part.ArcOfCircle(Part.Circle(App.Vector(-45.242484, 31.707516, 0), App.Vector(0, 0, 1), 4.792484), math.radians(0.000021), math.radians(89.999979)),  # 7
    Part.ArcOfCircle(Part.Circle(App.Vector(-107.95, 44, 0), App.Vector(0, 0, 1), 2.05), math.radians(90), math.radians(270)),  # 8
    Part.LineSegment(App.Vector(-107.95, 46.05, 0), App.Vector(-105.95, 46.05, 0)),  # 9
    Part.ArcOfCircle(Part.Circle(App.Vector(-105.95, 44, 0), App.Vector(0, 0, 1), 2.05), math.radians(-90), math.radians(90)),  # 10
    Part.LineSegment(App.Vector(-105.95, 41.95, 0), App.Vector(-107.95, 41.95, 0)),  # 11
    Part.ArcOfCircle(Part.Circle(App.Vector(-65.45, 44, 0), App.Vector(0, 0, 1), 2.05), math.radians(90), math.radians(270)),  # 12
    Part.LineSegment(App.Vector(-65.45, 46.05, 0), App.Vector(-63.45, 46.05, 0)),  # 13
    Part.ArcOfCircle(Part.Circle(App.Vector(-63.45, 44, 0), App.Vector(0, 0, 1), 2.05), math.radians(-90), math.radians(90)),  # 14
    Part.LineSegment(App.Vector(-63.45, 41.95, 0), App.Vector(-65.45, 41.95, 0)),  # 15
], False)
sketch10.addConstraint([
    Sketcher.Constraint("Coincident", 0, 2, 1, 1),
    Sketcher.Constraint("Tangent", 1, 2, 2, 1),
    Sketcher.Constraint("Tangent", 2, 2, 3, 1),
    Sketcher.Constraint("Coincident", 3, 2, 4, 1),
    Sketcher.Constraint("Tangent", 4, 2, 5, 1),
    Sketcher.Constraint("Coincident", 5, 2, 6, 1),
    Sketcher.Constraint("Tangent", 6, 2, 7, 2),
    Sketcher.Constraint("Coincident", 7, 1, 0, 1),
    Sketcher.Constraint("Tangent", 8, 1, 9, 1),
    Sketcher.Constraint("Tangent", 9, 2, 10, 2),
    Sketcher.Constraint("Tangent", 10, 1, 11, 1),
    Sketcher.Constraint("Tangent", 11, 2, 8, 2),
    Sketcher.Constraint("Tangent", 12, 1, 13, 1),
    Sketcher.Constraint("Tangent", 13, 2, 14, 2),
    Sketcher.Constraint("Tangent", 14, 1, 15, 1),
    Sketcher.Constraint("Tangent", 15, 2, 12, 2),
    Sketcher.Constraint("Horizontal", 0),
    Sketcher.Constraint("Vertical", 1),
    Sketcher.Constraint("Horizontal", 4),
    Sketcher.Constraint("Horizontal", 6),
    Sketcher.Constraint("Horizontal", 9),
    Sketcher.Constraint("Horizontal", 11),
    Sketcher.Constraint("Horizontal", 13),
    Sketcher.Constraint("Horizontal", 15),
    Sketcher.Constraint("Coincident", 8, 3, 5, 3),
    Sketcher.Constraint("Equal", 10, 12),
    Sketcher.Constraint("Horizontal", 10, 3, 12, 3),
    Sketcher.Constraint("Horizontal", 7, 3, 0, 2),
    Sketcher.Constraint("Equal", 11, 13),
    Sketcher.Constraint("DistanceX", 0, 1, 0, 2, 73.0),
    Sketcher.Constraint("DistanceX", 9, 1, 9, 2, 2.0),
    Sketcher.Constraint("Radius", 8, 2.05),
    Sketcher.Constraint("DistanceY", -1, 1, 5, 3, 44.0),
    Sketcher.Constraint("Radius", 2, 1.437002),
    Sketcher.Constraint("DistanceX", 14, 3, 0, 2, 96.0),
    Sketcher.Constraint("DistanceY", -1, 1, 5, 2, 36.5),
    Sketcher.Constraint("DistanceX", 10, 3, 12, 3, 40.5),
    Sketcher.Constraint("DistanceX", 5, 3, -1, 1, 107.95),
    Sketcher.Constraint("Radius", 5, 7.500242),
    Sketcher.Constraint("Radius", 7, 4.792484),
    Sketcher.Constraint("Distance", 3, 82.931311),
    Sketcher.Constraint("DistanceX", 4, 2, 4, 1, 57.485588),
])
sketch10.setExpression("Constraints[29]", "Params.sketch10_width")
sketch10.setExpression("Constraints[30]", "Params.sketch10_width2")
sketch10.setExpression("Constraints[31]", "Params.sketch10_radius")
pad5 = body.newObject("PartDesign::Pad", "Pad004")
pad5.Profile = sketch10
pad5.setExpression("Length", "Params.pad5_length")

doc.recompute()
